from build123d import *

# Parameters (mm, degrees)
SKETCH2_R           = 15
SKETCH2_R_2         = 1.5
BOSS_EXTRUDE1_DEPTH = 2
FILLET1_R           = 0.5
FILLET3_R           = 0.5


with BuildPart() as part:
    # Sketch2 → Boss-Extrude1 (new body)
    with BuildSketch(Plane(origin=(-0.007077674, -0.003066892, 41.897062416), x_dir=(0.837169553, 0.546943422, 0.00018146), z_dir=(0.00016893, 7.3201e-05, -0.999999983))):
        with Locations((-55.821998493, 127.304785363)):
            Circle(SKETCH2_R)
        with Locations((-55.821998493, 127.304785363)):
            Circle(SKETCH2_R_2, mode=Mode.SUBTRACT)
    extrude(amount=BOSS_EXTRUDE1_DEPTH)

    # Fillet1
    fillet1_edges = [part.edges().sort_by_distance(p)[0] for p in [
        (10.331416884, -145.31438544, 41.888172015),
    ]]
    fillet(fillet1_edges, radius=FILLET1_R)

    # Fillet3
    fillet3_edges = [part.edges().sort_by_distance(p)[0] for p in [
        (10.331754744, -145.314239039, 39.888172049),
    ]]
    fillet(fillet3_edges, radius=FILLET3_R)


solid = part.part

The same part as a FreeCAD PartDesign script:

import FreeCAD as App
import Part
import Sketcher


def edges_at(feature, points):
    """Names of the edges that pass closest to the given points."""
    edges = feature.Shape.Edges
    near = lambda p: min(range(len(edges)), key=lambda i: edges[i].distToShape(Part.Vertex(*p))[0])
    return sorted({f"Edge{near(p) + 1}" for p in points})

doc = App.newDocument("Part")
body = doc.addObject("PartDesign::Body", "Body")

# Sketch on an angled plane
sketch1 = doc.addObject("Sketcher::SketchObject", "Sketch")
body.addObject(sketch1)
sketch1.Placement = App.Placement(App.Vector(-0.007078, -0.003067, 41.897062), App.Rotation(App.Vector(0.837169553, 0.546943422, 0.00018146), App.Vector(0.546943426, -0.837169569, 0.000031114), App.Vector(0.00016893, 0.000073201, -0.999999983), "ZXY"))
sketch1.addGeometry(Part.Circle(App.Vector(-55.8, 127.3, 0), App.Vector(0, 0, 1), 15), False)
sketch1.addGeometry(Part.Circle(App.Vector(-55.8, 127.3, 0), App.Vector(0, 0, 1), 1.5), False)
sketch1.addConstraint(Sketcher.Constraint("Coincident", 1, 3, 0, 3))
sketch1.addConstraint(Sketcher.Constraint("Diameter", 0, 30.0))
sketch1.addConstraint(Sketcher.Constraint("Diameter", 1, 3.0))
sketch1.addConstraint(Sketcher.Constraint("DistanceX", 0, 3, -1, 1, 55.821999))
sketch1.addConstraint(Sketcher.Constraint("DistanceY", -1, 1, 0, 3, 127.304785))
pad1 = doc.addObject("PartDesign::Pad", "Pad")
body.addObject(pad1)
pad1.Profile = sketch1
pad1.Length = 2
doc.recompute()

fillet = doc.addObject("PartDesign::Fillet", "Fillet")
body.addObject(fillet)
fillet.Base = (pad1, edges_at(pad1, [(10.331, -145.314, 41.888)]))
fillet.Radius = 0.5
doc.recompute()

fillet2 = doc.addObject("PartDesign::Fillet", "Fillet001")
body.addObject(fillet2)
fillet2.Base = (fillet, edges_at(fillet, [(10.332, -145.314, 39.888)]))
fillet2.Radius = 0.5

doc.recompute()
